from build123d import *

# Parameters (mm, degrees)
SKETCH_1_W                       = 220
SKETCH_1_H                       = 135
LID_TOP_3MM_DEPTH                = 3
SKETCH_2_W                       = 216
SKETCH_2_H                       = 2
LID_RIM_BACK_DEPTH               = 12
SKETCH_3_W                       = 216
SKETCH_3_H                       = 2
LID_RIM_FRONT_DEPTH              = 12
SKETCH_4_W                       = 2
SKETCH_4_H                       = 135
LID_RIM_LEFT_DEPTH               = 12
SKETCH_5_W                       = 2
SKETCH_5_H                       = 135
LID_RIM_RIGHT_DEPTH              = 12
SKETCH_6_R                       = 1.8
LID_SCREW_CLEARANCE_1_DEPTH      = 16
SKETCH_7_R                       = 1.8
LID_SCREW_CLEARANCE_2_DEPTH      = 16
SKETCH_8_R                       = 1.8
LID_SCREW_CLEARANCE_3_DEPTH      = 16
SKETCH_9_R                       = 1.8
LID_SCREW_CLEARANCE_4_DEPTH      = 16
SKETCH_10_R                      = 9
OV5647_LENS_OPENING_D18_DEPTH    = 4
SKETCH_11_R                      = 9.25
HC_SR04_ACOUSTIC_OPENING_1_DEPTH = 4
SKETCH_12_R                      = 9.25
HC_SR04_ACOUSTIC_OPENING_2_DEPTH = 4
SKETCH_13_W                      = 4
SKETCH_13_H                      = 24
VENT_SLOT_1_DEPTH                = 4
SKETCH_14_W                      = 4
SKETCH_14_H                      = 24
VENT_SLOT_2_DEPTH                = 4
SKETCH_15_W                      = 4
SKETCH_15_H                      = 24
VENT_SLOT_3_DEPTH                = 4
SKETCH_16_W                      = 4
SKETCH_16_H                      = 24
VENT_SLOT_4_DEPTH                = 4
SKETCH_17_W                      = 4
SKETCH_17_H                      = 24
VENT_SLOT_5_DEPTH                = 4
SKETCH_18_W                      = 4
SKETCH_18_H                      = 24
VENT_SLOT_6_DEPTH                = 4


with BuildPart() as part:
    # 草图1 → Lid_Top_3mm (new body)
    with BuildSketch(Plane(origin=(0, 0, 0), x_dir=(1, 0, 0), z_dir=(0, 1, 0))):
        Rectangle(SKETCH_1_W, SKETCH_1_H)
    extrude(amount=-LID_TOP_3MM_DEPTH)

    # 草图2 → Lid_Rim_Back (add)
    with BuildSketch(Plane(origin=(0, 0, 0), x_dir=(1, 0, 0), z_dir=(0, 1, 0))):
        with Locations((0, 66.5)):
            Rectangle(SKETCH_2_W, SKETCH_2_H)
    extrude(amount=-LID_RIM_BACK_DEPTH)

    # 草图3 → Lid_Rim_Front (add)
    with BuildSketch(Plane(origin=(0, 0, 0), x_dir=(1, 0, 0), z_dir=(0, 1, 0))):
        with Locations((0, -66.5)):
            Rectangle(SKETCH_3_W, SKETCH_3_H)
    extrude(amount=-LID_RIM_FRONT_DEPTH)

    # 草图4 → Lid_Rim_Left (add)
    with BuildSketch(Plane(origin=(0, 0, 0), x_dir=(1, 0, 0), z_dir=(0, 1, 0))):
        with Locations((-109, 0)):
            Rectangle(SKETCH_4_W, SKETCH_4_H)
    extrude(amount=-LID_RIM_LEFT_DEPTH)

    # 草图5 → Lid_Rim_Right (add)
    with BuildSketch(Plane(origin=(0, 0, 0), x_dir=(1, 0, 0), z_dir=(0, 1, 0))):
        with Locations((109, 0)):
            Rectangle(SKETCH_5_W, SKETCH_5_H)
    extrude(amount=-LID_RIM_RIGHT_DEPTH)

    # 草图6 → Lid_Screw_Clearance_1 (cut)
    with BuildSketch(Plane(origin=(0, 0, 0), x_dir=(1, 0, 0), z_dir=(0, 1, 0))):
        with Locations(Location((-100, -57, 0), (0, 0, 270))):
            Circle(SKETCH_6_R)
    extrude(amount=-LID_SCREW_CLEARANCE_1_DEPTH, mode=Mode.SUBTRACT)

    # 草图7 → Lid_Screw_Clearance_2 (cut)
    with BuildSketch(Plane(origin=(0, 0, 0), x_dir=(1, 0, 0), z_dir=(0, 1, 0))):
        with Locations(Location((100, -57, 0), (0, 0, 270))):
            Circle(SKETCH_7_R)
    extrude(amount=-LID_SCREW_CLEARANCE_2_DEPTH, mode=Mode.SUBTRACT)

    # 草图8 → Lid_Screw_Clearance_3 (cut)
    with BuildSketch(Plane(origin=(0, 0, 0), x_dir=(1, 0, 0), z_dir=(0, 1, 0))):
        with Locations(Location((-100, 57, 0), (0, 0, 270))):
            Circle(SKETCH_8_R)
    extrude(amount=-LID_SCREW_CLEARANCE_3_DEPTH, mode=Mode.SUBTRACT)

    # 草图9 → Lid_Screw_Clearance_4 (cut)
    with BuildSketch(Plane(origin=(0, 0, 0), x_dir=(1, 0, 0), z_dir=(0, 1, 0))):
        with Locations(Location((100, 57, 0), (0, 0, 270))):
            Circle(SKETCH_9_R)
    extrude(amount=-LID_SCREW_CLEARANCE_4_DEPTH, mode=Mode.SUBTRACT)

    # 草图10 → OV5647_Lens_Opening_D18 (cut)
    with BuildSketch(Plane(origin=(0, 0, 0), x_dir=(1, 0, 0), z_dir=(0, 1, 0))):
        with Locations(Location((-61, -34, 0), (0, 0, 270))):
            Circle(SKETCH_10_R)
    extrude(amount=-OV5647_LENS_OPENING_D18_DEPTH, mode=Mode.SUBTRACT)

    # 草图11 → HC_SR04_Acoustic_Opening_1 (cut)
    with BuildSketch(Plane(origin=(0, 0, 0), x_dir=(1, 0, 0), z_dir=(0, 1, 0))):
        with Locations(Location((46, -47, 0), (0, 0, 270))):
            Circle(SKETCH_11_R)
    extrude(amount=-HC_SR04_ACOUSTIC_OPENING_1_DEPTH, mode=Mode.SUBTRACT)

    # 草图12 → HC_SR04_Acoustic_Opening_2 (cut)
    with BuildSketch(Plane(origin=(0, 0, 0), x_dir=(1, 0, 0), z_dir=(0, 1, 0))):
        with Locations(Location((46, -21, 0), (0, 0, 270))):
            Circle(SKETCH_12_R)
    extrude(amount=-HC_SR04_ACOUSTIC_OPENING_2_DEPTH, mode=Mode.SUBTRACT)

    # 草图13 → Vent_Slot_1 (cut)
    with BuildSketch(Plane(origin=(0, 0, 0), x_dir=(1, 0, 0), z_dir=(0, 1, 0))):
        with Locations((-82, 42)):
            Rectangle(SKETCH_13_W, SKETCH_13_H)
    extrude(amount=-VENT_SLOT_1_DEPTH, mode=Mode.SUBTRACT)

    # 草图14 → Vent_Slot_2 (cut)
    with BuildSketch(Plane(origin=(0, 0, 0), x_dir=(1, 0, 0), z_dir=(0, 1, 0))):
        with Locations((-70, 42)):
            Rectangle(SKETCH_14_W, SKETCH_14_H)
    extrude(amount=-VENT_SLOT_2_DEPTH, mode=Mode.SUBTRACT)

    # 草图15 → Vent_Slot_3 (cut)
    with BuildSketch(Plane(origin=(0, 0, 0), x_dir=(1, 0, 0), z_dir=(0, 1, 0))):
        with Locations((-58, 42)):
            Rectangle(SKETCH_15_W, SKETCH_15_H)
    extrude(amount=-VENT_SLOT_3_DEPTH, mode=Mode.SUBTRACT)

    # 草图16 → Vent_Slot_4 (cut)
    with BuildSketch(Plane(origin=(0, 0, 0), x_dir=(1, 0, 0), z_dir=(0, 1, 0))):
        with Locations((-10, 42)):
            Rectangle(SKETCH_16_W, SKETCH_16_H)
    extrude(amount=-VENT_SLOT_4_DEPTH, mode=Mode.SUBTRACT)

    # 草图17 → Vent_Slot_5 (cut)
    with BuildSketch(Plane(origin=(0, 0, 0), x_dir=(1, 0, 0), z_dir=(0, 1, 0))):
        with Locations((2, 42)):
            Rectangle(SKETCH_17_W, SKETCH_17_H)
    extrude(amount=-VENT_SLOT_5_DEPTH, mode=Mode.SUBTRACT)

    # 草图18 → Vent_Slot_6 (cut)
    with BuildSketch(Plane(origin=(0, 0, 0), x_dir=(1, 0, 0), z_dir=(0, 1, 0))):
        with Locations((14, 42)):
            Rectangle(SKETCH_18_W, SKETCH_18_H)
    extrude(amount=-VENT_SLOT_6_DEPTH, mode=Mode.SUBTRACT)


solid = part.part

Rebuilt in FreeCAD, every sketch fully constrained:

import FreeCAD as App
import Part
import Sketcher
from FreeCAD import Vector
Q = App.Units.Quantity


def add_polygon(sketch, points):
    """Adds a closed chain of lines whose ends are joined by coincident constraints."""
    first, n = sketch.GeometryCount, len(points)
    for a, b in zip(points, points[1:] + points[:1]):
        sketch.addGeometry(Part.LineSegment(App.Vector(*a, 0), App.Vector(*b, 0)), False)
    for i in range(n):
        sketch.addConstraint(Sketcher.Constraint("Coincident", first + i, 2, first + (i + 1) % n, 1))

doc = App.newDocument("Part")
params = doc.addObject("Spreadsheet::Sheet", "Params")
for row, (alias, value) in enumerate([
    ("sketch1_width", "220 mm"),
    ("sketch1_height", "135 mm"),
    ("pad1_length", "3 mm"),
    ("sketch2_width", "216 mm"),
    ("sketch2_height", "2 mm"),
    ("pad2_length", "12 mm"),
    ("sketch3_width", "216 mm"),
    ("sketch3_height", "2 mm"),
    ("pad3_length", "12 mm"),
    ("sketch4_width", "2 mm"),
    ("sketch4_height", "135 mm"),
    ("pad4_length", "12 mm"),
    ("sketch5_width", "2 mm"),
    ("sketch5_height", "135 mm"),
    ("pad5_length", "12 mm"),
    ("sketch6_diameter", "3.6 mm"),
    ("pocket1_length", "16 mm"),
    ("sketch7_diameter", "3.6 mm"),
    ("pocket2_length", "16 mm"),
    ("sketch8_diameter", "3.6 mm"),
    ("pocket3_length", "16 mm"),
    ("sketch9_diameter", "3.6 mm"),
    ("pocket4_length", "16 mm"),
    ("sketch10_diameter", "18 mm"),
    ("pocket5_length", "4 mm"),
    ("sketch11_diameter", "18.5 mm"),
    ("pocket6_length", "4 mm"),
    ("sketch12_diameter", "18.5 mm"),
    ("pocket7_length", "4 mm"),
    ("sketch13_width", "4 mm"),
    ("sketch13_height", "24 mm"),
    ("pocket8_length", "4 mm"),
    ("sketch14_width", "4 mm"),
    ("sketch14_height", "24 mm"),
    ("pocket9_length", "4 mm"),
    ("sketch15_width", "4 mm"),
    ("sketch15_height", "24 mm"),
    ("pocket10_length", "4 mm"),
    ("sketch16_width", "4 mm"),
    ("sketch16_height", "24 mm"),
    ("pocket11_length", "4 mm"),
    ("sketch17_width", "4 mm"),
    ("sketch17_height", "24 mm"),
    ("pocket12_length", "4 mm"),
    ("sketch18_width", "4 mm"),
    ("sketch18_height", "24 mm"),
    ("pocket13_length", "4 mm"),
], start=1):
    params.set(f"A{row}", alias)
    params.set(f"B{row}", "=" + value)
    params.setAlias(f"B{row}", alias)

body = doc.addObject("PartDesign::Body", "Body")

sketch1 = doc.addObject("Sketcher::SketchObject", "Sketch")
body.addObject(sketch1)
sketch1.AttachmentSupport = (doc.XZ_Plane, [""])
sketch1.MapMode = "FlatFace"
add_polygon(sketch1, [(-110, -68), (-110, 68), (110, 68), (110, -68)])
sketch1.addConstraint(Sketcher.Constraint("Vertical", 0))
sketch1.addConstraint(Sketcher.Constraint("Horizontal", 1))
sketch1.addConstraint(Sketcher.Constraint("Vertical", 2))
sketch1.addConstraint(Sketcher.Constraint("Horizontal", 3))
sketch1.addConstraint(Sketcher.Constraint("Symmetric", 0, 2, 2, 2, -1, 1))
sketch1.addConstraint(Sketcher.Constraint("DistanceX", 1, 1, 1, 2, Q("220 mm")))
sketch1.addConstraint(Sketcher.Constraint("DistanceY", 0, 1, 0, 2, Q("135 mm")))
sketch1.setExpression("Constraints[9]", "Params.sketch1_width")
sketch1.setExpression("Constraints[10]", "Params.sketch1_height")
pad1 = doc.addObject("PartDesign::Pad", "Pad")
body.addObject(pad1)
pad1.Profile = sketch1
pad1.setExpression("Length", "Params.pad1_length")

sketch2 = doc.addObject("Sketcher::SketchObject", "Sketch001")
body.addObject(sketch2)
sketch2.AttachmentSupport = (doc.XZ_Plane, [""])
sketch2.MapMode = "FlatFace"
add_polygon(sketch2, [(-108, -67.5), (-108, -65.5), (108, -65.5), (108, -67.5)])
sketch2.addConstraint(Sketcher.Constraint("Vertical", 0))
sketch2.addConstraint(Sketcher.Constraint("Horizontal", 1))
sketch2.addConstraint(Sketcher.Constraint("Vertical", 2))
sketch2.addConstraint(Sketcher.Constraint("Horizontal", 3))
sketch2.addConstraint(Sketcher.Constraint("DistanceX", 1, 1, 1, 2, Q("216 mm")))
sketch2.addConstraint(Sketcher.Constraint("DistanceY", 0, 1, 0, 2, Q("2 mm")))
sketch2.addConstraint(Sketcher.Constraint("DistanceX", 0, 2, -1, 1, Q("108 mm")))
sketch2.addConstraint(Sketcher.Constraint("DistanceY", 0, 2, -1, 1, Q("65.5 mm")))
sketch2.setExpression("Constraints[8]", "Params.sketch2_width")
sketch2.setExpression("Constraints[9]", "Params.sketch2_height")
pad2 = doc.addObject("PartDesign::Pad", "Pad001")
body.addObject(pad2)
pad2.Profile = sketch2
pad2.setExpression("Length", "Params.pad2_length")

sketch3 = doc.addObject("Sketcher::SketchObject", "Sketch002")
body.addObject(sketch3)
sketch3.AttachmentSupport = (doc.XZ_Plane, [""])
sketch3.MapMode = "FlatFace"
add_polygon(sketch3, [(-108, 65.5), (-108, 67.5), (108, 67.5), (108, 65.5)])
sketch3.addConstraint(Sketcher.Constraint("Vertical", 0))
sketch3.addConstraint(Sketcher.Constraint("Horizontal", 1))
sketch3.addConstraint(Sketcher.Constraint("Vertical", 2))
sketch3.addConstraint(Sketcher.Constraint("Horizontal", 3))
sketch3.addConstraint(Sketcher.Constraint("DistanceX", 1, 1, 1, 2, Q("216 mm")))
sketch3.addConstraint(Sketcher.Constraint("DistanceY", 0, 1, 0, 2, Q("2 mm")))
sketch3.addConstraint(Sketcher.Constraint("DistanceX", 0, 2, -1, 1, Q("108 mm")))
sketch3.addConstraint(Sketcher.Constraint("DistanceY", -1, 1, 0, 2, Q("67.5 mm")))
sketch3.setExpression("Constraints[8]", "Params.sketch3_width")
sketch3.setExpression("Constraints[9]", "Params.sketch3_height")
pad3 = doc.addObject("PartDesign::Pad", "Pad002")
body.addObject(pad3)
pad3.Profile = sketch3
pad3.setExpression("Length", "Params.pad3_length")

sketch4 = doc.addObject("Sketcher::SketchObject", "Sketch003")
body.addObject(sketch4)
sketch4.AttachmentSupport = (doc.XZ_Plane, [""])
sketch4.MapMode = "FlatFace"
add_polygon(sketch4, [(-110, -67.5), (-110, 67.5), (-108, 67.5), (-108, -67.5)])
sketch4.addConstraint(Sketcher.Constraint("Vertical", 0))
sketch4.addConstraint(Sketcher.Constraint("Horizontal", 1))
sketch4.addConstraint(Sketcher.Constraint("Vertical", 2))
sketch4.addConstraint(Sketcher.Constraint("Horizontal", 3))
sketch4.addConstraint(Sketcher.Constraint("DistanceX", 1, 1, 1, 2, Q("2 mm")))
sketch4.addConstraint(Sketcher.Constraint("DistanceY", 0, 1, 0, 2, Q("135 mm")))
sketch4.addConstraint(Sketcher.Constraint("DistanceX", 0, 2, -1, 1, Q("110 mm")))
sketch4.addConstraint(Sketcher.Constraint("DistanceY", -1, 1, 0, 2, Q("67.5 mm")))
sketch4.setExpression("Constraints[8]", "Params.sketch4_width")
sketch4.setExpression("Constraints[9]", "Params.sketch4_height")
pad4 = doc.addObject("PartDesign::Pad", "Pad003")
body.addObject(pad4)
pad4.Profile = sketch4
pad4.setExpression("Length", "Params.pad4_length")

sketch5 = doc.addObject("Sketcher::SketchObject", "Sketch004")
body.addObject(sketch5)
sketch5.AttachmentSupport = (doc.XZ_Plane, [""])
sketch5.MapMode = "FlatFace"
add_polygon(sketch5, [(108, -67.5), (108, 67.5), (110, 67.5), (110, -67.5)])
sketch5.addConstraint(Sketcher.Constraint("Vertical", 0))
sketch5.addConstraint(Sketcher.Constraint("Horizontal", 1))
sketch5.addConstraint(Sketcher.Constraint("Vertical", 2))
sketch5.addConstraint(Sketcher.Constraint("Horizontal", 3))
sketch5.addConstraint(Sketcher.Constraint("DistanceX", 1, 1, 1, 2, Q("2 mm")))
sketch5.addConstraint(Sketcher.Constraint("DistanceY", 0, 1, 0, 2, Q("135 mm")))
sketch5.addConstraint(Sketcher.Constraint("DistanceX", -1, 1, 0, 2, Q("108 mm")))
sketch5.addConstraint(Sketcher.Constraint("DistanceY", -1, 1, 0, 2, Q("67.5 mm")))
sketch5.setExpression("Constraints[8]", "Params.sketch5_width")
sketch5.setExpression("Constraints[9]", "Params.sketch5_height")
pad5 = doc.addObject("PartDesign::Pad", "Pad004")
body.addObject(pad5)
pad5.Profile = sketch5
pad5.setExpression("Length", "Params.pad5_length")

sketch6 = doc.addObject("Sketcher::SketchObject", "Sketch005")
body.addObject(sketch6)
sketch6.AttachmentSupport = (doc.XZ_Plane, [""])
sketch6.MapMode = "FlatFace"
sketch6.addGeometry(Part.Circle(Vector(-100, 57, 0), Vector(0, 0, 1), 1.8), False)
sketch6.addConstraint(Sketcher.Constraint("Diameter", 0, Q("3.6 mm")))
sketch6.addConstraint(Sketcher.Constraint("DistanceX", 0, 3, -1, 1, Q("100 mm")))
sketch6.addConstraint(Sketcher.Constraint("DistanceY", -1, 1, 0, 3, Q("57 mm")))
sketch6.setExpression("Constraints[0]", "Params.sketch6_diameter")
pocket1 = doc.addObject("PartDesign::Pocket", "Pocket")
body.addObject(pocket1)
pocket1.Profile = sketch6
pocket1.setExpression("Length", "Params.pocket1_length")
pocket1.Reversed = True

sketch7 = doc.addObject("Sketcher::SketchObject", "Sketch006")
body.addObject(sketch7)
sketch7.AttachmentSupport = (doc.XZ_Plane, [""])
sketch7.MapMode = "FlatFace"
sketch7.addGeometry(Part.Circle(Vector(100, 57, 0), Vector(0, 0, 1), 1.8), False)
sketch7.addConstraint(Sketcher.Constraint("Diameter", 0, Q("3.6 mm")))
sketch7.addConstraint(Sketcher.Constraint("DistanceX", -1, 1, 0, 3, Q("100 mm")))
sketch7.addConstraint(Sketcher.Constraint("DistanceY", -1, 1, 0, 3, Q("57 mm")))
sketch7.setExpression("Constraints[0]", "Params.sketch7_diameter")
pocket2 = doc.addObject("PartDesign::Pocket", "Pocket001")
body.addObject(pocket2)
pocket2.Profile = sketch7
pocket2.setExpression("Length", "Params.pocket2_length")
pocket2.Reversed = True

sketch8 = doc.addObject("Sketcher::SketchObject", "Sketch007")
body.addObject(sketch8)
sketch8.AttachmentSupport = (doc.XZ_Plane, [""])
sketch8.MapMode = "FlatFace"
sketch8.addGeometry(Part.Circle(Vector(-100, -57, 0), Vector(0, 0, 1), 1.8), False)
sketch8.addConstraint(Sketcher.Constraint("Diameter", 0, Q("3.6 mm")))
sketch8.addConstraint(Sketcher.Constraint("DistanceX", 0, 3, -1, 1, Q("100 mm")))
sketch8.addConstraint(Sketcher.Constraint("DistanceY", 0, 3, -1, 1, Q("57 mm")))
sketch8.setExpression("Constraints[0]", "Params.sketch8_diameter")
pocket3 = doc.addObject("PartDesign::Pocket", "Pocket002")
body.addObject(pocket3)
pocket3.Profile = sketch8
pocket3.setExpression("Length", "Params.pocket3_length")
pocket3.Reversed = True

sketch9 = doc.addObject("Sketcher::SketchObject", "Sketch008")
body.addObject(sketch9)
sketch9.AttachmentSupport = (doc.XZ_Plane, [""])
sketch9.MapMode = "FlatFace"
sketch9.addGeometry(Part.Circle(Vector(100, -57, 0), Vector(0, 0, 1), 1.8), False)
sketch9.addConstraint(Sketcher.Constraint("Diameter", 0, Q("3.6 mm")))
sketch9.addConstraint(Sketcher.Constraint("DistanceX", -1, 1, 0, 3, Q("100 mm")))
sketch9.addConstraint(Sketcher.Constraint("DistanceY", 0, 3, -1, 1, Q("57 mm")))
sketch9.setExpression("Constraints[0]", "Params.sketch9_diameter")
pocket4 = doc.addObject("PartDesign::Pocket", "Pocket003")
body.addObject(pocket4)
pocket4.Profile = sketch9
pocket4.setExpression("Length", "Params.pocket4_length")
pocket4.Reversed = True

sketch10 = doc.addObject("Sketcher::SketchObject", "Sketch009")
body.addObject(sketch10)
sketch10.AttachmentSupport = (doc.XZ_Plane, [""])
sketch10.MapMode = "FlatFace"
sketch10.addGeometry(Part.Circle(Vector(-61, 34, 0), Vector(0, 0, 1), 9), False)
sketch10.addConstraint(Sketcher.Constraint("Diameter", 0, Q("18 mm")))
sketch10.addConstraint(Sketcher.Constraint("DistanceX", 0, 3, -1, 1, Q("61 mm")))
sketch10.addConstraint(Sketcher.Constraint("DistanceY", -1, 1, 0, 3, Q("34 mm")))
sketch10.setExpression("Constraints[0]", "Params.sketch10_diameter")
pocket5 = doc.addObject("PartDesign::Pocket", "Pocket004")
body.addObject(pocket5)
pocket5.Profile = sketch10
pocket5.setExpression("Length", "Params.pocket5_length")
pocket5.Reversed = True

sketch11 = doc.addObject("Sketcher::SketchObject", "Sketch010")
body.addObject(sketch11)
sketch11.AttachmentSupport = (doc.XZ_Plane, [""])
sketch11.MapMode = "FlatFace"
sketch11.addGeometry(Part.Circle(Vector(46, 47, 0), Vector(0, 0, 1), 9), False)
sketch11.addConstraint(Sketcher.Constraint("Diameter", 0, Q("18.5 mm")))
sketch11.addConstraint(Sketcher.Constraint("DistanceX", -1, 1, 0, 3, Q("46 mm")))
sketch11.addConstraint(Sketcher.Constraint("DistanceY", -1, 1, 0, 3, Q("47 mm")))
sketch11.setExpression("Constraints[0]", "Params.sketch11_diameter")
pocket6 = doc.addObject("PartDesign::Pocket", "Pocket005")
body.addObject(pocket6)
pocket6.Profile = sketch11
pocket6.setExpression("Length", "Params.pocket6_length")
pocket6.Reversed = True

sketch12 = doc.addObject("Sketcher::SketchObject", "Sketch011")
body.addObject(sketch12)
sketch12.AttachmentSupport = (doc.XZ_Plane, [""])
sketch12.MapMode = "FlatFace"
sketch12.addGeometry(Part.Circle(Vector(46, 21, 0), Vector(0, 0, 1), 9), False)
sketch12.addConstraint(Sketcher.Constraint("Diameter", 0, Q("18.5 mm")))
sketch12.addConstraint(Sketcher.Constraint("DistanceX", -1, 1, 0, 3, Q("46 mm")))
sketch12.addConstraint(Sketcher.Constraint("DistanceY", -1, 1, 0, 3, Q("21 mm")))
sketch12.setExpression("Constraints[0]", "Params.sketch12_diameter")
pocket7 = doc.addObject("PartDesign::Pocket", "Pocket006")
body.addObject(pocket7)
pocket7.Profile = sketch12
pocket7.setExpression("Length", "Params.pocket7_length")
pocket7.Reversed = True

sketch13 = doc.addObject("Sketcher::SketchObject", "Sketch012")
body.addObject(sketch13)
sketch13.AttachmentSupport = (doc.XZ_Plane, [""])
sketch13.MapMode = "FlatFace"
add_polygon(sketch13, [(-84, -54), (-84, -30), (-80, -30), (-80, -54)])
sketch13.addConstraint(Sketcher.Constraint("Vertical", 0))
sketch13.addConstraint(Sketcher.Constraint("Horizontal", 1))
sketch13.addConstraint(Sketcher.Constraint("Vertical", 2))
sketch13.addConstraint(Sketcher.Constraint("Horizontal", 3))
sketch13.addConstraint(Sketcher.Constraint("DistanceX", 1, 1, 1, 2, Q("4 mm")))
sketch13.addConstraint(Sketcher.Constraint("DistanceY", 0, 1, 0, 2, Q("24 mm")))
sketch13.addConstraint(Sketcher.Constraint("DistanceX", 0, 2, -1, 1, Q("84 mm")))
sketch13.addConstraint(Sketcher.Constraint("DistanceY", 0, 2, -1, 1, Q("30 mm")))
sketch13.setExpression("Constraints[8]", "Params.sketch13_width")
sketch13.setExpression("Constraints[9]", "Params.sketch13_height")
pocket8 = doc.addObject("PartDesign::Pocket", "Pocket007")
body.addObject(pocket8)
pocket8.Profile = sketch13
pocket8.setExpression("Length", "Params.pocket8_length")
pocket8.Reversed = True

sketch14 = doc.addObject("Sketcher::SketchObject", "Sketch013")
body.addObject(sketch14)
sketch14.AttachmentSupport = (doc.XZ_Plane, [""])
sketch14.MapMode = "FlatFace"
add_polygon(sketch14, [(-72, -54), (-72, -30), (-68, -30), (-68, -54)])
sketch14.addConstraint(Sketcher.Constraint("Vertical", 0))
sketch14.addConstraint(Sketcher.Constraint("Horizontal", 1))
sketch14.addConstraint(Sketcher.Constraint("Vertical", 2))
sketch14.addConstraint(Sketcher.Constraint("Horizontal", 3))
sketch14.addConstraint(Sketcher.Constraint("DistanceX", 1, 1, 1, 2, Q("4 mm")))
sketch14.addConstraint(Sketcher.Constraint("DistanceY", 0, 1, 0, 2, Q("24 mm")))
sketch14.addConstraint(Sketcher.Constraint("DistanceX", 0, 2, -1, 1, Q("72 mm")))
sketch14.addConstraint(Sketcher.Constraint("DistanceY", 0, 2, -1, 1, Q("30 mm")))
sketch14.setExpression("Constraints[8]", "Params.sketch14_width")
sketch14.setExpression("Constraints[9]", "Params.sketch14_height")
pocket9 = doc.addObject("PartDesign::Pocket", "Pocket008")
body.addObject(pocket9)
pocket9.Profile = sketch14
pocket9.setExpression("Length", "Params.pocket9_length")
pocket9.Reversed = True

sketch15 = doc.addObject("Sketcher::SketchObject", "Sketch014")
body.addObject(sketch15)
sketch15.AttachmentSupport = (doc.XZ_Plane, [""])
sketch15.MapMode = "FlatFace"
add_polygon(sketch15, [(-60, -54), (-60, -30), (-56, -30), (-56, -54)])
sketch15.addConstraint(Sketcher.Constraint("Vertical", 0))
sketch15.addConstraint(Sketcher.Constraint("Horizontal", 1))
sketch15.addConstraint(Sketcher.Constraint("Vertical", 2))
sketch15.addConstraint(Sketcher.Constraint("Horizontal", 3))
sketch15.addConstraint(Sketcher.Constraint("DistanceX", 1, 1, 1, 2, Q("4 mm")))
sketch15.addConstraint(Sketcher.Constraint("DistanceY", 0, 1, 0, 2, Q("24 mm")))
sketch15.addConstraint(Sketcher.Constraint("DistanceX", 0, 2, -1, 1, Q("60 mm")))
sketch15.addConstraint(Sketcher.Constraint("DistanceY", 0, 2, -1, 1, Q("30 mm")))
sketch15.setExpression("Constraints[8]", "Params.sketch15_width")
sketch15.setExpression("Constraints[9]", "Params.sketch15_height")
pocket10 = doc.addObject("PartDesign::Pocket", "Pocket009")
body.addObject(pocket10)
pocket10.Profile = sketch15
pocket10.setExpression("Length", "Params.pocket10_length")
pocket10.Reversed = True

sketch16 = doc.addObject("Sketcher::SketchObject", "Sketch015")
body.addObject(sketch16)
sketch16.AttachmentSupport = (doc.XZ_Plane, [""])
sketch16.MapMode = "FlatFace"
add_polygon(sketch16, [(-12, -54), (-12, -30), (-8, -30), (-8, -54)])
sketch16.addConstraint(Sketcher.Constraint("Vertical", 0))
sketch16.addConstraint(Sketcher.Constraint("Horizontal", 1))
sketch16.addConstraint(Sketcher.Constraint("Vertical", 2))
sketch16.addConstraint(Sketcher.Constraint("Horizontal", 3))
sketch16.addConstraint(Sketcher.Constraint("DistanceX", 1, 1, 1, 2, Q("4 mm")))
sketch16.addConstraint(Sketcher.Constraint("DistanceY", 0, 1, 0, 2, Q("24 mm")))
sketch16.addConstraint(Sketcher.Constraint("DistanceX", 0, 2, -1, 1, Q("12 mm")))
sketch16.addConstraint(Sketcher.Constraint("DistanceY", 0, 2, -1, 1, Q("30 mm")))
sketch16.setExpression("Constraints[8]", "Params.sketch16_width")
sketch16.setExpression("Constraints[9]", "Params.sketch16_height")
pocket11 = doc.addObject("PartDesign::Pocket", "Pocket010")
body.addObject(pocket11)
pocket11.Profile = sketch16
pocket11.setExpression("Length", "Params.pocket11_length")
pocket11.Reversed = True

sketch17 = doc.addObject("Sketcher::SketchObject", "Sketch016")
body.addObject(sketch17)
sketch17.AttachmentSupport = (doc.XZ_Plane, [""])
sketch17.MapMode = "FlatFace"
add_polygon(sketch17, [(0, -54), (0, -30), (4, -30), (4, -54)])
sketch17.addConstraint(Sketcher.Constraint("Vertical", 0))
sketch17.addConstraint(Sketcher.Constraint("Horizontal", 1))
sketch17.addConstraint(Sketcher.Constraint("Vertical", 2))
sketch17.addConstraint(Sketcher.Constraint("Horizontal", 3))
sketch17.addConstraint(Sketcher.Constraint("PointOnObject", 0, 2, -2))
sketch17.addConstraint(Sketcher.Constraint("DistanceX", 1, 1, 1, 2, Q("4 mm")))
sketch17.addConstraint(Sketcher.Constraint("DistanceY", 0, 1, 0, 2, Q("24 mm")))
sketch17.addConstraint(Sketcher.Constraint("DistanceY", 0, 2, -1, 1, Q("30 mm")))
sketch17.setExpression("Constraints[9]", "Params.sketch17_width")
sketch17.setExpression("Constraints[10]", "Params.sketch17_height")
pocket12 = doc.addObject("PartDesign::Pocket", "Pocket011")
body.addObject(pocket12)
pocket12.Profile = sketch17
pocket12.setExpression("Length", "Params.pocket12_length")
pocket12.Reversed = True

sketch18 = doc.addObject("Sketcher::SketchObject", "Sketch017")
body.addObject(sketch18)
sketch18.AttachmentSupport = (doc.XZ_Plane, [""])
sketch18.MapMode = "FlatFace"
add_polygon(sketch18, [(12, -54), (12, -30), (16, -30), (16, -54)])
sketch18.addConstraint(Sketcher.Constraint("Vertical", 0))
sketch18.addConstraint(Sketcher.Constraint("Horizontal", 1))
sketch18.addConstraint(Sketcher.Constraint("Vertical", 2))
sketch18.addConstraint(Sketcher.Constraint("Horizontal", 3))
sketch18.addConstraint(Sketcher.Constraint("DistanceX", 1, 1, 1, 2, Q("4 mm")))
sketch18.addConstraint(Sketcher.Constraint("DistanceY", 0, 1, 0, 2, Q("24 mm")))
sketch18.addConstraint(Sketcher.Constraint("DistanceX", -1, 1, 0, 2, Q("12 mm")))
sketch18.addConstraint(Sketcher.Constraint("DistanceY", 0, 2, -1, 1, Q("30 mm")))
sketch18.setExpression("Constraints[8]", "Params.sketch18_width")
sketch18.setExpression("Constraints[9]", "Params.sketch18_height")
pocket13 = doc.addObject("PartDesign::Pocket", "Pocket012")
body.addObject(pocket13)
pocket13.Profile = sketch18
pocket13.setExpression("Length", "Params.pocket13_length")
pocket13.Reversed = True

doc.recompute()
